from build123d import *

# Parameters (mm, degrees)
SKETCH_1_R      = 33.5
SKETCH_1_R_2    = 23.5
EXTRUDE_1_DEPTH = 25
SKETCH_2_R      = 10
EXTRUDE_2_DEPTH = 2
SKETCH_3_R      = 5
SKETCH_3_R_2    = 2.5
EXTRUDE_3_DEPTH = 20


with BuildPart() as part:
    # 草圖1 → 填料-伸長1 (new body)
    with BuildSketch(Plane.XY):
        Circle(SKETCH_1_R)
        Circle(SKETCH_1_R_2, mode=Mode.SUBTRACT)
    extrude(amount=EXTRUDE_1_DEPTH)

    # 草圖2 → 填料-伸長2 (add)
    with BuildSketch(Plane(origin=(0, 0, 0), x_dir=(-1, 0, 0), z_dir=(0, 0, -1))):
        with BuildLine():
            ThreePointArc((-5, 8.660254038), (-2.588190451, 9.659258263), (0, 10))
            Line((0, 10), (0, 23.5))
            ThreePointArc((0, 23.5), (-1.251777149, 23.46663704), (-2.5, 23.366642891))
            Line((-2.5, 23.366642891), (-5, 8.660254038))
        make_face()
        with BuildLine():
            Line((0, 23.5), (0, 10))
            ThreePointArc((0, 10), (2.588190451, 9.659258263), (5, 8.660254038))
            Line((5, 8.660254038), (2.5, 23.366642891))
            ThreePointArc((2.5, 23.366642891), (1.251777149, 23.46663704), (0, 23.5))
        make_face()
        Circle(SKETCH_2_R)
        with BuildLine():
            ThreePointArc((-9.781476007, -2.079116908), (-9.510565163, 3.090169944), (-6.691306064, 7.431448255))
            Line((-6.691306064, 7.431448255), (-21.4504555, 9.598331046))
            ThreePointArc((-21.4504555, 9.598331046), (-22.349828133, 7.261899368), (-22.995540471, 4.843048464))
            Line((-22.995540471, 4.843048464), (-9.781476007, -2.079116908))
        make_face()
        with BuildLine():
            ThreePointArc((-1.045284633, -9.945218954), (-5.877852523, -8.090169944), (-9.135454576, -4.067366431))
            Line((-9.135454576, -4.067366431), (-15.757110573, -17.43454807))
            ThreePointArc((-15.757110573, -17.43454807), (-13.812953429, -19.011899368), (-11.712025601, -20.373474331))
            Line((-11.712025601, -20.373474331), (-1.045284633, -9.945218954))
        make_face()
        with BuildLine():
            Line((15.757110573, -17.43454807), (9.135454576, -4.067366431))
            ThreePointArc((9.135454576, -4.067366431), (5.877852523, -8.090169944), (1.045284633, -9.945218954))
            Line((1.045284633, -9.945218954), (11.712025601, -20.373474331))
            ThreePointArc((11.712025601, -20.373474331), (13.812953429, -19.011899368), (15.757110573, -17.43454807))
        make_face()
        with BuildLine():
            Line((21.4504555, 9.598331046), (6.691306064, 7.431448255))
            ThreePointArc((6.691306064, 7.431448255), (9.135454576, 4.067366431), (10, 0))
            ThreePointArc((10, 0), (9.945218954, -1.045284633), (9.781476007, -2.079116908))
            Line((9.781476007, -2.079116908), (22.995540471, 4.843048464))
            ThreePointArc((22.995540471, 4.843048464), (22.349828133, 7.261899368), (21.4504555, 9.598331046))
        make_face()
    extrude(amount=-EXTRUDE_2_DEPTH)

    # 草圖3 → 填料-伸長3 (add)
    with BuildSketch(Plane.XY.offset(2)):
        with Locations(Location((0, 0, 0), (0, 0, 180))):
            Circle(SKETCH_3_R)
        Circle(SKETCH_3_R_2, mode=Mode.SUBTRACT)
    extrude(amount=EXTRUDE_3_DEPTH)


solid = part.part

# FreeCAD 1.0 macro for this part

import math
import FreeCAD as App
import Part
import Sketcher
from FreeCAD import Vector

doc = App.newDocument("Part")
params = doc.addObject("Spreadsheet::Sheet", "Params")
for row, (alias, value) in enumerate([
    ("sketch1_diameter", "67 mm"),
    ("sketch1_diameter2", "47 mm"),
    ("pad1_length", "25 mm"),
    ("sketch2_radius", "10 mm"),
    ("sketch2_radius2", "23.5 mm"),
    ("pad2_length", "2 mm"),
    ("sketch3_diameter", "10 mm"),
    ("sketch3_diameter2", "5 mm"),
    ("pad3_length", "20 mm"),
], start=1):
    params.set(f"A{row}", alias)
    params.set(f"B{row}", "=" + value)
    params.setAlias(f"B{row}", alias)

body = doc.addObject("PartDesign::Body", "Body")

# Sketch on XY plane
sketch1 = doc.addObject("Sketcher::SketchObject", "Sketch")
body.addObject(sketch1)
sketch1.AttachmentSupport = (doc.XY_Plane, [""])
sketch1.MapMode = "FlatFace"
sketch1.addGeometry(Part.Circle(Vector(0, 0, 0), Vector(0, 0, 1), 34), False)
sketch1.addGeometry(Part.Circle(Vector(0, 0, 0), Vector(0, 0, 1), 24), False)
sketch1.addConstraint(Sketcher.Constraint("Coincident", 0, 3, -1, 1))
sketch1.addConstraint(Sketcher.Constraint("Coincident", 1, 3, -1, 1))
sketch1.addConstraint(Sketcher.Constraint("Diameter", 0, 67.0))
sketch1.addConstraint(Sketcher.Constraint("Diameter", 1, 47.0))
sketch1.setExpression("Constraints[2]", "Params.sketch1_diameter")
sketch1.setExpression("Constraints[3]", "Params.sketch1_diameter2")
pad1 = doc.addObject("PartDesign::Pad", "Pad")
body.addObject(pad1)
pad1.Profile = sketch1
pad1.setExpression("Length", "Params.pad1_length")

# Sketch on XY plane
sketch2 = doc.addObject("Sketcher::SketchObject", "Sketch001")
body.addObject(sketch2)
sketch2.AttachmentSupport = (doc.XY_Plane, [""])
sketch2.MapMode = "FlatFace"
sketch2.addGeometry(Part.LineSegment(Vector(-5, 8.7, 0), Vector(-2.5, 23.4, 0)), False)
sketch2.addGeometry(Part.ArcOfCircle(Part.Circle(Vector(0, 0, 0), Vector(0, 0, 1), 23.5), math.radians(90), math.radians(96.11)), False)
sketch2.addGeometry(Part.ArcOfCircle(Part.Circle(Vector(0, 0, 0), Vector(0, 0, 1), 23.5), math.radians(83.89), math.radians(90)), False)
sketch2.addGeometry(Part.LineSegment(Vector(2.5, 23.4, 0), Vector(5, 8.7, 0)), False)
sketch2.addGeometry(Part.ArcOfCircle(Part.Circle(Vector(0, 0, 0), Vector(0, 0, 1), 10), math.radians(48), math.radians(60)), False)
sketch2.addGeometry(Part.LineSegment(Vector(6.7, 7.4, 0), Vector(21.5, 9.6, 0)), False)
sketch2.addGeometry(Part.ArcOfCircle(Part.Circle(Vector(0, 0, 0), Vector(0, 0, 1), 23.5), math.radians(11.89), math.radians(24.11)), False)
sketch2.addGeometry(Part.LineSegment(Vector(23, 4.8, 0), Vector(9.8, -2.1, 0)), False)
sketch2.addGeometry(Part.ArcOfCircle(Part.Circle(Vector(0, 0, 0), Vector(0, 0, 1), 10), math.radians(-24), math.radians(-12)), False)
sketch2.addGeometry(Part.LineSegment(Vector(9.1, -4.1, 0), Vector(15.8, -17.4, 0)), False)
sketch2.addGeometry(Part.ArcOfCircle(Part.Circle(Vector(0, 0, 0), Vector(0, 0, 1), 23.5), math.radians(-60.11), math.radians(-47.89)), False)
sketch2.addGeometry(Part.LineSegment(Vector(11.7, -20.4, 0), Vector(1, -9.9, 0)), False)
sketch2.addGeometry(Part.ArcOfCircle(Part.Circle(Vector(0, 0, 0), Vector(0, 0, 1), 10), math.radians(-96), math.radians(-84)), False)
sketch2.addGeometry(Part.LineSegment(Vector(-1, -9.9, 0), Vector(-11.7, -20.4, 0)), False)
sketch2.addGeometry(Part.ArcOfCircle(Part.Circle(Vector(0, 0, 0), Vector(0, 0, 1), 23.5), math.radians(-132.11), math.radians(-119.89)), False)
sketch2.addGeometry(Part.LineSegment(Vector(-15.8, -17.4, 0), Vector(-9.1, -4.1, 0)), False)
sketch2.addGeometry(Part.ArcOfCircle(Part.Circle(Vector(0, 0, 0), Vector(0, 0, 1), 10), math.radians(-168), math.radians(-156)), False)
sketch2.addGeometry(Part.LineSegment(Vector(-9.8, -2.1, 0), Vector(-23, 4.8, 0)), False)
sketch2.addGeometry(Part.ArcOfCircle(Part.Circle(Vector(0, 0, 0), Vector(0, 0, 1), 23.5), math.radians(155.89), math.radians(168.11)), False)
sketch2.addGeometry(Part.LineSegment(Vector(-21.5, 9.6, 0), Vector(-6.7, 7.4, 0)), False)
sketch2.addGeometry(Part.ArcOfCircle(Part.Circle(Vector(0, 0, 0), Vector(0, 0, 1), 10), math.radians(120), math.radians(132)), False)
sketch2.addConstraint(Sketcher.Constraint("Coincident", 0, 2, 1, 2))
sketch2.addConstraint(Sketcher.Constraint("Tangent", 1, 1, 2, 2))
sketch2.addConstraint(Sketcher.Constraint("Coincident", 2, 1, 3, 1))
sketch2.addConstraint(Sketcher.Constraint("Coincident", 3, 2, 4, 2))
sketch2.addConstraint(Sketcher.Constraint("Coincident", 4, 1, 5, 1))
sketch2.addConstraint(Sketcher.Constraint("Coincident", 5, 2, 6, 2))
sketch2.addConstraint(Sketcher.Constraint("Coincident", 6, 1, 7, 1))
sketch2.addConstraint(Sketcher.Constraint("Coincident", 7, 2, 8, 2))
sketch2.addConstraint(Sketcher.Constraint("Coincident", 8, 1, 9, 1))
sketch2.addConstraint(Sketcher.Constraint("Coincident", 9, 2, 10, 2))
sketch2.addConstraint(Sketcher.Constraint("Coincident", 10, 1, 11, 1))
sketch2.addConstraint(Sketcher.Constraint("Coincident", 11, 2, 12, 2))
sketch2.addConstraint(Sketcher.Constraint("Coincident", 12, 1, 13, 1))
sketch2.addConstraint(Sketcher.Constraint("Coincident", 13, 2, 14, 2))
sketch2.addConstraint(Sketcher.Constraint("Coincident", 14, 1, 15, 1))
sketch2.addConstraint(Sketcher.Constraint("Coincident", 15, 2, 16, 2))
sketch2.addConstraint(Sketcher.Constraint("Coincident", 16, 1, 17, 1))
sketch2.addConstraint(Sketcher.Constraint("Coincident", 17, 2, 18, 2))
sketch2.addConstraint(Sketcher.Constraint("Coincident", 18, 1, 19, 1))
sketch2.addConstraint(Sketcher.Constraint("Coincident", 19, 2, 20, 2))
sketch2.addConstraint(Sketcher.Constraint("Coincident", 20, 1, 0, 1))
sketch2.addConstraint(Sketcher.Constraint("Coincident", 1, 3, -1, 1))
sketch2.addConstraint(Sketcher.Constraint("Coincident", 4, 3, -1, 1))
sketch2.addConstraint(Sketcher.Constraint("Coincident", 6, 3, -1, 1))
sketch2.addConstraint(Sketcher.Constraint("Coincident", 8, 3, -1, 1))
sketch2.addConstraint(Sketcher.Constraint("Coincident", 10, 3, -1, 1))
sketch2.addConstraint(Sketcher.Constraint("Coincident", 12, 3, -1, 1))
sketch2.addConstraint(Sketcher.Constraint("Coincident", 14, 3, -1, 1))
sketch2.addConstraint(Sketcher.Constraint("Coincident", 16, 3, -1, 1))
sketch2.addConstraint(Sketcher.Constraint("Coincident", 18, 3, -1, 1))
sketch2.addConstraint(Sketcher.Constraint("Coincident", 20, 3, -1, 1))
sketch2.addConstraint(Sketcher.Constraint("Equal", 1, 2))
sketch2.addConstraint(Sketcher.Constraint("Equal", 2, 6))
sketch2.addConstraint(Sketcher.Constraint("Equal", 4, 8))
sketch2.addConstraint(Sketcher.Constraint("Equal", 6, 10))
sketch2.addConstraint(Sketcher.Constraint("Equal", 8, 12))
sketch2.addConstraint(Sketcher.Constraint("Equal", 10, 14))
sketch2.addConstraint(Sketcher.Constraint("Equal", 12, 16))
sketch2.addConstraint(Sketcher.Constraint("Equal", 14, 18))
sketch2.addConstraint(Sketcher.Constraint("Equal", 16, 20))
sketch2.addConstraint(Sketcher.Constraint("PointOnObject", 1, 1, -2))
sketch2.addConstraint(Sketcher.Constraint("Horizontal", 0, 2, 2, 1))
sketch2.addConstraint(Sketcher.Constraint("Horizontal", 11, 2, 12, 1))
sketch2.addConstraint(Sketcher.Constraint("Horizontal", 10, 1, 13, 2))
sketch2.addConstraint(Sketcher.Constraint("Horizontal", 9, 2, 14, 1))
sketch2.addConstraint(Sketcher.Constraint("Horizontal", 8, 1, 15, 2))
sketch2.addConstraint(Sketcher.Constraint("Horizontal", 7, 2, 16, 1))
sketch2.addConstraint(Sketcher.Constraint("Horizontal", 6, 1, 17, 2))
sketch2.addConstraint(Sketcher.Constraint("Horizontal", 5, 2, 18, 1))
sketch2.addConstraint(Sketcher.Constraint("Horizontal", 4, 1, 19, 2))
sketch2.addConstraint(Sketcher.Constraint("Horizontal", 3, 2, 20, 1))
sketch2.addConstraint(Sketcher.Constraint("Equal", 3, 5))
sketch2.addConstraint(Sketcher.Constraint("Equal", 5, 7))
sketch2.addConstraint(Sketcher.Constraint("Equal", 7, 9))
sketch2.addConstraint(Sketcher.Constraint("Equal", 9, 11))
sketch2.addConstraint(Sketcher.Constraint("Radius", 4, 10.0))
sketch2.addConstraint(Sketcher.Constraint("Radius", 1, 23.5))
sketch2.addConstraint(Sketcher.Constraint("DistanceX", -1, 1, 3, 2, 5.0))
sketch2.addConstraint(Sketcher.Constraint("DistanceX", 0, 2, 2, 1, 5.0))
sketch2.addConstraint(Sketcher.Constraint("DistanceX", 18, 1, 15, 2, 12.315001))
sketch2.addConstraint(Sketcher.Constraint("DistanceY", 6, 1, 4, 1, 2.5884))
sketch2.addConstraint(Sketcher.Constraint("DistanceY", -1, 1, 4, 1, 7.431448))
sketch2.addConstraint(Sketcher.Constraint("DistanceY", 11, 2, -1, 1, 9.945219))
sketch2.setExpression("Constraints[55]", "Params.sketch2_radius")
sketch2.setExpression("Constraints[56]", "Params.sketch2_radius2")
pad2 = doc.addObject("PartDesign::Pad", "Pad001")
body.addObject(pad2)
pad2.Profile = sketch2
pad2.setExpression("Length", "Params.pad2_length")

# Sketch on XY plane
sketch3 = doc.addObject("Sketcher::SketchObject", "Sketch002")
body.addObject(sketch3)
sketch3.AttachmentSupport = (doc.XY_Plane, [""])
sketch3.MapMode = "FlatFace"
sketch3.AttachmentOffset = App.Placement(Vector(0, 0, 2), App.Rotation())
sketch3.addGeometry(Part.Circle(Vector(0, 0, 0), Vector(0, 0, 1), 5), False)
sketch3.addGeometry(Part.Circle(Vector(0, 0, 0), Vector(0, 0, 1), 2.5), False)
sketch3.addConstraint(Sketcher.Constraint("Coincident", 0, 3, -1, 1))
sketch3.addConstraint(Sketcher.Constraint("Coincident", 1, 3, -1, 1))
sketch3.addConstraint(Sketcher.Constraint("Diameter", 0, 10.0))
sketch3.addConstraint(Sketcher.Constraint("Diameter", 1, 5.0))
sketch3.setExpression("Constraints[2]", "Params.sketch3_diameter")
sketch3.setExpression("Constraints[3]", "Params.sketch3_diameter2")
pad3 = doc.addObject("PartDesign::Pad", "Pad002")
body.addObject(pad3)
pad3.Profile = sketch3
pad3.setExpression("Length", "Params.pad3_length")

doc.recompute()
